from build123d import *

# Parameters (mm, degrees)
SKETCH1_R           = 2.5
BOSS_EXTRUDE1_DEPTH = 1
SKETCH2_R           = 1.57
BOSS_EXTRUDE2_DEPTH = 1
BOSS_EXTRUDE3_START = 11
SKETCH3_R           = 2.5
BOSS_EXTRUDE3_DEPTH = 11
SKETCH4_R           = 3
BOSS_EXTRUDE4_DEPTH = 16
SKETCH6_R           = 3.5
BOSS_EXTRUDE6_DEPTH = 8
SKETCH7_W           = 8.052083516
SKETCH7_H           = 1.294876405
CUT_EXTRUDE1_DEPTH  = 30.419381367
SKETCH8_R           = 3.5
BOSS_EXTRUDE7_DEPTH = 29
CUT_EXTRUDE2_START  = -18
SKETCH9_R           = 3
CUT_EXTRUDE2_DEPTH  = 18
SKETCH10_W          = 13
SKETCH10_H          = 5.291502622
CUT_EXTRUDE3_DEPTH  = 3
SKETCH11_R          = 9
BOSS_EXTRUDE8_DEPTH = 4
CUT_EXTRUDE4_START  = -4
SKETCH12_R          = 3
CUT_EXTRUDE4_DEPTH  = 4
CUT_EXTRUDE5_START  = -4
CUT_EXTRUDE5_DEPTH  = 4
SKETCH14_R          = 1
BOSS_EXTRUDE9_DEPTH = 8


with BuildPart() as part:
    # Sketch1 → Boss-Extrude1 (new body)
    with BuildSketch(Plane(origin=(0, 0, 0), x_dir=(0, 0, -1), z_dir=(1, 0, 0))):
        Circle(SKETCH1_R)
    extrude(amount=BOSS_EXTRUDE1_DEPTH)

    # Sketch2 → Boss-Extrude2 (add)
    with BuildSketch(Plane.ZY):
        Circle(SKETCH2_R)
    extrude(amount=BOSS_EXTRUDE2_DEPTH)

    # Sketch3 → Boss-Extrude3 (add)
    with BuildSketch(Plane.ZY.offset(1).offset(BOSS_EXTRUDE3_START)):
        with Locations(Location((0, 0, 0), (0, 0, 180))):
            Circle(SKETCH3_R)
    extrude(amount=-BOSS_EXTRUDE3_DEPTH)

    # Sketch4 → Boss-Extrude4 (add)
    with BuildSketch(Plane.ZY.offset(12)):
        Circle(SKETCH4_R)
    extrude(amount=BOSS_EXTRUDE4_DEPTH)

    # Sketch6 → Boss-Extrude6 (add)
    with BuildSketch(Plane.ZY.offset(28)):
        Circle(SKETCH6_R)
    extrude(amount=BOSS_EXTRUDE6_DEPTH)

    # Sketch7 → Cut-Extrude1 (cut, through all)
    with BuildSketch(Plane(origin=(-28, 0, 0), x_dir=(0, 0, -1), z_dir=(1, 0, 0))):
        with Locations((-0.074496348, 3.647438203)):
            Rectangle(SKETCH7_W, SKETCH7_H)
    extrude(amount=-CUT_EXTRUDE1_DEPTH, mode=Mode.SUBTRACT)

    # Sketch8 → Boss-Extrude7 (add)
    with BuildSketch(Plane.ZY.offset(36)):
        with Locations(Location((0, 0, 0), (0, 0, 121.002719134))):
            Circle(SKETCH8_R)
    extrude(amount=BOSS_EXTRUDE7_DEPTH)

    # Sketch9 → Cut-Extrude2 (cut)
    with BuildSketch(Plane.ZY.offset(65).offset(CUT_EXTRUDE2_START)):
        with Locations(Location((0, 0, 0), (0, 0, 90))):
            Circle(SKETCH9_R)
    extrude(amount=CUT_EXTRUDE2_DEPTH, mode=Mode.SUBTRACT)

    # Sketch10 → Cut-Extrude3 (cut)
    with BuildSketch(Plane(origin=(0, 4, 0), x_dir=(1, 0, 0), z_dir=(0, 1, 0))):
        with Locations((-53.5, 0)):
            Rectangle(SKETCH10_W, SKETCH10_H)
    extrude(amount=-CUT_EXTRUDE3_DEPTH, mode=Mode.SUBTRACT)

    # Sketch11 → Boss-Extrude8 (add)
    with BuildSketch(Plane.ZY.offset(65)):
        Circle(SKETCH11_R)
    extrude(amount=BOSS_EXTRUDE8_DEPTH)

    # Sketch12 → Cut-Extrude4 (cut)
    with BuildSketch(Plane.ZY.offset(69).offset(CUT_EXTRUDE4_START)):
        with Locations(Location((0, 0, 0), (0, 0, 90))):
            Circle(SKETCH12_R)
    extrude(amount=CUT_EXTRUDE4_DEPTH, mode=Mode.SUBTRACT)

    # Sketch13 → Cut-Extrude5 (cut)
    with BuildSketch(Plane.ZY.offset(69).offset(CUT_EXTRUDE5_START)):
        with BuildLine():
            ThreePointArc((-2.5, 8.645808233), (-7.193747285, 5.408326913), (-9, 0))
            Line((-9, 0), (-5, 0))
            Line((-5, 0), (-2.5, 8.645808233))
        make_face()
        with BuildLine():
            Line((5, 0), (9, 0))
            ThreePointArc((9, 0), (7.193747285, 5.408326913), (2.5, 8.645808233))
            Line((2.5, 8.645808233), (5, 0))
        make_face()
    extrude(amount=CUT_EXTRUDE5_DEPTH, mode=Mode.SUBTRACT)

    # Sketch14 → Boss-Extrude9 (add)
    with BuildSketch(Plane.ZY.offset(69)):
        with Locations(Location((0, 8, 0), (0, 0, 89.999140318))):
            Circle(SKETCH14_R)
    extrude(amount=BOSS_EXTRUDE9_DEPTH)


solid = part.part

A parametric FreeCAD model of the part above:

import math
import FreeCAD as App
import Part
import Sketcher

doc = App.newDocument("Part")
body = doc.addObject("PartDesign::Body", "Body")

# Sketch on YZ plane
sketch1 = body.newObject("Sketcher::SketchObject", "Sketch")
sketch1.AttachmentSupport = (doc.getObject("YZ_Plane"), [""])
sketch1.MapMode = "FlatFace"
sketch1.addGeometry(Part.Circle(App.Vector(0, 0, 0), App.Vector(0, 0, 1), 2.5), False)
sketch1.addConstraint([
    Sketcher.Constraint("Coincident", 0, 3, -1, 1),
    Sketcher.Constraint("Diameter", 0, 5.0),
])
pad1 = body.newObject("PartDesign::Pad", "Pad")
pad1.Profile = sketch1
pad1.Length = 1

# Sketch on YZ plane
sketch2 = body.newObject("Sketcher::SketchObject", "Sketch001")
sketch2.AttachmentSupport = (doc.getObject("YZ_Plane"), [""])
sketch2.MapMode = "FlatFace"
sketch2.addGeometry(Part.Circle(App.Vector(0, 0, 0), App.Vector(0, 0, 1), 1.6), False)
sketch2.addConstraint([
    Sketcher.Constraint("Coincident", 0, 3, -1, 1),
    Sketcher.Constraint("Diameter", 0, 3.14),
])
pad2 = body.newObject("PartDesign::Pad", "Pad001")
pad2.Profile = sketch2
pad2.Length = 1
pad2.Reversed = True

# Sketch on YZ plane
sketch3 = body.newObject("Sketcher::SketchObject", "Sketch002")
sketch3.AttachmentSupport = (doc.getObject("YZ_Plane"), [""])
sketch3.MapMode = "FlatFace"
sketch3.AttachmentOffset = App.Placement(App.Vector(0, 0, -12), App.Rotation())
sketch3.addGeometry(Part.Circle(App.Vector(0, 0, 0), App.Vector(0, 0, 1), 2.5), False)
sketch3.addConstraint([
    Sketcher.Constraint("Coincident", 0, 3, -1, 1),
    Sketcher.Constraint("Diameter", 0, 5.0),
])
pad3 = body.newObject("PartDesign::Pad", "Pad002")
pad3.Profile = sketch3
pad3.Length = 11

# Sketch on YZ plane
sketch4 = body.newObject("Sketcher::SketchObject", "Sketch003")
sketch4.AttachmentSupport = (doc.getObject("YZ_Plane"), [""])
sketch4.MapMode = "FlatFace"
sketch4.AttachmentOffset = App.Placement(App.Vector(0, 0, -12), App.Rotation())
sketch4.addGeometry(Part.Circle(App.Vector(0, 0, 0), App.Vector(0, 0, 1), 3), False)
sketch4.addConstraint([
    Sketcher.Constraint("Coincident", 0, 3, -1, 1),
    Sketcher.Constraint("Diameter", 0, 6.0),
])
pad4 = body.newObject("PartDesign::Pad", "Pad003")
pad4.Profile = sketch4
pad4.Length = 16
pad4.Reversed = True

# Sketch on YZ plane
sketch5 = body.newObject("Sketcher::SketchObject", "Sketch004")
sketch5.AttachmentSupport = (doc.getObject("YZ_Plane"), [""])
sketch5.MapMode = "FlatFace"
sketch5.AttachmentOffset = App.Placement(App.Vector(0, 0, -28), App.Rotation())
sketch5.addGeometry(Part.Circle(App.Vector(0, 0, 0), App.Vector(0, 0, 1), 3.5), False)
sketch5.addConstraint([
    Sketcher.Constraint("Coincident", 0, 3, -1, 1),
    Sketcher.Constraint("Diameter", 0, 7.0),
])
pad5 = body.newObject("PartDesign::Pad", "Pad004")
pad5.Profile = sketch5
pad5.Length = 8
pad5.Reversed = True

# Sketch on YZ plane
sketch6 = body.newObject("Sketcher::SketchObject", "Sketch005")
sketch6.AttachmentSupport = (doc.getObject("YZ_Plane"), [""])
sketch6.MapMode = "FlatFace"
sketch6.AttachmentOffset = App.Placement(App.Vector(0, 0, -28), App.Rotation())
sketch6.addGeometry([
    Part.LineSegment(App.Vector(4.3, 4.1, 0), App.Vector(3, 4.1, 0)),
    Part.LineSegment(App.Vector(3, 4.1, 0), App.Vector(3, -4, 0)),
    Part.LineSegment(App.Vector(3, -4, 0), App.Vector(4.3, -4, 0)),
    Part.LineSegment(App.Vector(4.3, -4, 0), App.Vector(4.3, 4.1, 0)),
], False)
sketch6.addConstraint([
    Sketcher.Constraint("Coincident", 0, 2, 1, 1),
    Sketcher.Constraint("Coincident", 1, 2, 2, 1),
    Sketcher.Constraint("Coincident", 2, 2, 3, 1),
    Sketcher.Constraint("Coincident", 3, 2, 0, 1),
    Sketcher.Constraint("Horizontal", 0),
    Sketcher.Constraint("Vertical", 1),
    Sketcher.Constraint("Horizontal", 2),
    Sketcher.Constraint("Vertical", 3),
    Sketcher.Constraint("DistanceX", -1, 1, 0, 2, 3.0),
    Sketcher.Constraint("DistanceX", 0, 2, 0, 1, 1.294876),
    Sketcher.Constraint("DistanceY", 1, 2, 1, 1, 8.052084),
    Sketcher.Constraint("DistanceY", -1, 1, 0, 2, 4.100538),
])
pocket1 = body.newObject("PartDesign::Pocket", "Pocket")
pocket1.Profile = sketch6
pocket1.Type = "ThroughAll"

# Sketch on YZ plane
sketch7 = body.newObject("Sketcher::SketchObject", "Sketch006")
sketch7.AttachmentSupport = (doc.getObject("YZ_Plane"), [""])
sketch7.MapMode = "FlatFace"
sketch7.AttachmentOffset = App.Placement(App.Vector(0, 0, -36), App.Rotation())
sketch7.addGeometry(Part.Circle(App.Vector(0, 0, 0), App.Vector(0, 0, 1), 3.5), False)
sketch7.addConstraint([
    Sketcher.Constraint("Coincident", 0, 3, -1, 1),
    Sketcher.Constraint("Diameter", 0, 7.0),
])
pad6 = body.newObject("PartDesign::Pad", "Pad005")
pad6.Profile = sketch7
pad6.Length = 29
pad6.Reversed = True

# Sketch on YZ plane
sketch8 = body.newObject("Sketcher::SketchObject", "Sketch007")
sketch8.AttachmentSupport = (doc.getObject("YZ_Plane"), [""])
sketch8.MapMode = "FlatFace"
sketch8.AttachmentOffset = App.Placement(App.Vector(0, 0, -47), App.Rotation())
sketch8.addGeometry(Part.Circle(App.Vector(0, 0, 0), App.Vector(0, 0, 1), 3), False)
sketch8.addConstraint([
    Sketcher.Constraint("Coincident", 0, 3, -1, 1),
    Sketcher.Constraint("Diameter", 0, 6.0),
])
pocket2 = body.newObject("PartDesign::Pocket", "Pocket001")
pocket2.Profile = sketch8
pocket2.Length = 18

# Sketch on XZ plane
sketch9 = body.newObject("Sketcher::SketchObject", "Sketch008")
sketch9.AttachmentSupport = (doc.getObject("XZ_Plane"), [""])
sketch9.MapMode = "FlatFace"
sketch9.AttachmentOffset = App.Placement(App.Vector(0, 0, -4), App.Rotation())
sketch9.addGeometry([
    Part.LineSegment(App.Vector(-60, -3, 0), App.Vector(-60, 3, 0)),
    Part.LineSegment(App.Vector(-60, 3, 0), App.Vector(-47, 3, 0)),
    Part.LineSegment(App.Vector(-47, 3, 0), App.Vector(-47, -3, 0)),
    Part.LineSegment(App.Vector(-47, -3, 0), App.Vector(-60, -3, 0)),
], False)
sketch9.addConstraint([
    Sketcher.Constraint("Coincident", 0, 2, 1, 1),
    Sketcher.Constraint("Coincident", 1, 2, 2, 1),
    Sketcher.Constraint("Coincident", 2, 2, 3, 1),
    Sketcher.Constraint("Coincident", 3, 2, 0, 1),
    Sketcher.Constraint("Vertical", 0),
    Sketcher.Constraint("Horizontal", 1),
    Sketcher.Constraint("Vertical", 2),
    Sketcher.Constraint("Horizontal", 3),
    Sketcher.Constraint("DistanceX", 1, 1, 1, 2, 13.0),
    Sketcher.Constraint("DistanceX", 0, 2, -1, 1, 60.0),
    Sketcher.Constraint("DistanceY", 0, 1, 0, 2, 5.291503),
    Sketcher.Constraint("DistanceY", -1, 1, 0, 2, 2.645751),
])
pocket3 = body.newObject("PartDesign::Pocket", "Pocket002")
pocket3.Profile = sketch9
pocket3.Length = 3
pocket3.Reversed = True

# Sketch on YZ plane
sketch10 = body.newObject("Sketcher::SketchObject", "Sketch009")
sketch10.AttachmentSupport = (doc.getObject("YZ_Plane"), [""])
sketch10.MapMode = "FlatFace"
sketch10.AttachmentOffset = App.Placement(App.Vector(0, 0, -65), App.Rotation())
sketch10.addGeometry(Part.Circle(App.Vector(0, 0, 0), App.Vector(0, 0, 1), 9), False)
sketch10.addConstraint([
    Sketcher.Constraint("Coincident", 0, 3, -1, 1),
    Sketcher.Constraint("Diameter", 0, 18.0),
])
pad7 = body.newObject("PartDesign::Pad", "Pad006")
pad7.Profile = sketch10
pad7.Length = 4
pad7.Reversed = True

# Sketch on YZ plane
sketch11 = body.newObject("Sketcher::SketchObject", "Sketch010")
sketch11.AttachmentSupport = (doc.getObject("YZ_Plane"), [""])
sketch11.MapMode = "FlatFace"
sketch11.AttachmentOffset = App.Placement(App.Vector(0, 0, -65), App.Rotation())
sketch11.addGeometry(Part.Circle(App.Vector(0, 0, 0), App.Vector(0, 0, 1), 3), False)
sketch11.addConstraint([
    Sketcher.Constraint("Coincident", 0, 3, -1, 1),
    Sketcher.Constraint("Diameter", 0, 6.0),
])
pocket4 = body.newObject("PartDesign::Pocket", "Pocket003")
pocket4.Profile = sketch11
pocket4.Length = 4

# Sketch on YZ plane
sketch12 = body.newObject("Sketcher::SketchObject", "Sketch011")
sketch12.AttachmentSupport = (doc.getObject("YZ_Plane"), [""])
sketch12.MapMode = "FlatFace"
sketch12.AttachmentOffset = App.Placement(App.Vector(0, 0, -65), App.Rotation())
sketch12.addGeometry([
    Part.ArcOfCircle(Part.Circle(App.Vector(0, 0, 0), App.Vector(0, 0, 1), 9), math.radians(-90), math.radians(-16)),  # 0
    Part.LineSegment(App.Vector(0, -9, 0), App.Vector(0, -5, 0)),  # 1
    Part.LineSegment(App.Vector(0, -5, 0), App.Vector(8.6, -2.5, 0)),  # 2
    Part.LineSegment(App.Vector(0, 5, 0), App.Vector(0, 9, 0)),  # 3
    Part.ArcOfCircle(Part.Circle(App.Vector(0, 0, 0), App.Vector(0, 0, 1), 9), math.radians(16), math.radians(90)),  # 4
    Part.LineSegment(App.Vector(8.6, 2.5, 0), App.Vector(0, 5, 0)),  # 5
], False)
sketch12.addConstraint([
    Sketcher.Constraint("Coincident", 0, 1, 1, 1),
    Sketcher.Constraint("Coincident", 1, 2, 2, 1),
    Sketcher.Constraint("Coincident", 2, 2, 0, 2),
    Sketcher.Constraint("Coincident", 3, 2, 4, 2),
    Sketcher.Constraint("Coincident", 4, 1, 5, 1),
    Sketcher.Constraint("Coincident", 5, 2, 3, 1),
    Sketcher.Constraint("Vertical", 1),
    Sketcher.Constraint("Vertical", 3),
    Sketcher.Constraint("Coincident", 0, 3, -1, 1),
    Sketcher.Constraint("Coincident", 4, 3, -1, 1),
    Sketcher.Constraint("Equal", 0, 4),
    Sketcher.Constraint("Symmetric", 1, 2, 5, 2, -1, 1),
    Sketcher.Constraint("PointOnObject", 0, 1, -2),
    Sketcher.Constraint("Vertical", 2, 2, 4, 1),
    Sketcher.Constraint("Radius", 0, 9.0),
    Sketcher.Constraint("DistanceY", 1, 1, 1, 2, 4.0),
    Sketcher.Constraint("Distance", 2, 9.0),
])
pocket5 = body.newObject("PartDesign::Pocket", "Pocket004")
pocket5.Profile = sketch12
pocket5.Length = 4

# Sketch on YZ plane
sketch13 = body.newObject("Sketcher::SketchObject", "Sketch012")
sketch13.AttachmentSupport = (doc.getObject("YZ_Plane"), [""])
sketch13.MapMode = "FlatFace"
sketch13.AttachmentOffset = App.Placement(App.Vector(0, 0, -69), App.Rotation())
sketch13.addGeometry(Part.Circle(App.Vector(8, 0, 0), App.Vector(0, 0, 1), 1), False)
sketch13.addConstraint([
    Sketcher.Constraint("PointOnObject", 0, 3, -1),
    Sketcher.Constraint("Diameter", 0, 2.0),
    Sketcher.Constraint("DistanceX", -1, 1, 0, 3, 8.0),
])
pad8 = body.newObject("PartDesign::Pad", "Pad007")
pad8.Profile = sketch13
pad8.Length = 8
pad8.Reversed = True

doc.recompute()
